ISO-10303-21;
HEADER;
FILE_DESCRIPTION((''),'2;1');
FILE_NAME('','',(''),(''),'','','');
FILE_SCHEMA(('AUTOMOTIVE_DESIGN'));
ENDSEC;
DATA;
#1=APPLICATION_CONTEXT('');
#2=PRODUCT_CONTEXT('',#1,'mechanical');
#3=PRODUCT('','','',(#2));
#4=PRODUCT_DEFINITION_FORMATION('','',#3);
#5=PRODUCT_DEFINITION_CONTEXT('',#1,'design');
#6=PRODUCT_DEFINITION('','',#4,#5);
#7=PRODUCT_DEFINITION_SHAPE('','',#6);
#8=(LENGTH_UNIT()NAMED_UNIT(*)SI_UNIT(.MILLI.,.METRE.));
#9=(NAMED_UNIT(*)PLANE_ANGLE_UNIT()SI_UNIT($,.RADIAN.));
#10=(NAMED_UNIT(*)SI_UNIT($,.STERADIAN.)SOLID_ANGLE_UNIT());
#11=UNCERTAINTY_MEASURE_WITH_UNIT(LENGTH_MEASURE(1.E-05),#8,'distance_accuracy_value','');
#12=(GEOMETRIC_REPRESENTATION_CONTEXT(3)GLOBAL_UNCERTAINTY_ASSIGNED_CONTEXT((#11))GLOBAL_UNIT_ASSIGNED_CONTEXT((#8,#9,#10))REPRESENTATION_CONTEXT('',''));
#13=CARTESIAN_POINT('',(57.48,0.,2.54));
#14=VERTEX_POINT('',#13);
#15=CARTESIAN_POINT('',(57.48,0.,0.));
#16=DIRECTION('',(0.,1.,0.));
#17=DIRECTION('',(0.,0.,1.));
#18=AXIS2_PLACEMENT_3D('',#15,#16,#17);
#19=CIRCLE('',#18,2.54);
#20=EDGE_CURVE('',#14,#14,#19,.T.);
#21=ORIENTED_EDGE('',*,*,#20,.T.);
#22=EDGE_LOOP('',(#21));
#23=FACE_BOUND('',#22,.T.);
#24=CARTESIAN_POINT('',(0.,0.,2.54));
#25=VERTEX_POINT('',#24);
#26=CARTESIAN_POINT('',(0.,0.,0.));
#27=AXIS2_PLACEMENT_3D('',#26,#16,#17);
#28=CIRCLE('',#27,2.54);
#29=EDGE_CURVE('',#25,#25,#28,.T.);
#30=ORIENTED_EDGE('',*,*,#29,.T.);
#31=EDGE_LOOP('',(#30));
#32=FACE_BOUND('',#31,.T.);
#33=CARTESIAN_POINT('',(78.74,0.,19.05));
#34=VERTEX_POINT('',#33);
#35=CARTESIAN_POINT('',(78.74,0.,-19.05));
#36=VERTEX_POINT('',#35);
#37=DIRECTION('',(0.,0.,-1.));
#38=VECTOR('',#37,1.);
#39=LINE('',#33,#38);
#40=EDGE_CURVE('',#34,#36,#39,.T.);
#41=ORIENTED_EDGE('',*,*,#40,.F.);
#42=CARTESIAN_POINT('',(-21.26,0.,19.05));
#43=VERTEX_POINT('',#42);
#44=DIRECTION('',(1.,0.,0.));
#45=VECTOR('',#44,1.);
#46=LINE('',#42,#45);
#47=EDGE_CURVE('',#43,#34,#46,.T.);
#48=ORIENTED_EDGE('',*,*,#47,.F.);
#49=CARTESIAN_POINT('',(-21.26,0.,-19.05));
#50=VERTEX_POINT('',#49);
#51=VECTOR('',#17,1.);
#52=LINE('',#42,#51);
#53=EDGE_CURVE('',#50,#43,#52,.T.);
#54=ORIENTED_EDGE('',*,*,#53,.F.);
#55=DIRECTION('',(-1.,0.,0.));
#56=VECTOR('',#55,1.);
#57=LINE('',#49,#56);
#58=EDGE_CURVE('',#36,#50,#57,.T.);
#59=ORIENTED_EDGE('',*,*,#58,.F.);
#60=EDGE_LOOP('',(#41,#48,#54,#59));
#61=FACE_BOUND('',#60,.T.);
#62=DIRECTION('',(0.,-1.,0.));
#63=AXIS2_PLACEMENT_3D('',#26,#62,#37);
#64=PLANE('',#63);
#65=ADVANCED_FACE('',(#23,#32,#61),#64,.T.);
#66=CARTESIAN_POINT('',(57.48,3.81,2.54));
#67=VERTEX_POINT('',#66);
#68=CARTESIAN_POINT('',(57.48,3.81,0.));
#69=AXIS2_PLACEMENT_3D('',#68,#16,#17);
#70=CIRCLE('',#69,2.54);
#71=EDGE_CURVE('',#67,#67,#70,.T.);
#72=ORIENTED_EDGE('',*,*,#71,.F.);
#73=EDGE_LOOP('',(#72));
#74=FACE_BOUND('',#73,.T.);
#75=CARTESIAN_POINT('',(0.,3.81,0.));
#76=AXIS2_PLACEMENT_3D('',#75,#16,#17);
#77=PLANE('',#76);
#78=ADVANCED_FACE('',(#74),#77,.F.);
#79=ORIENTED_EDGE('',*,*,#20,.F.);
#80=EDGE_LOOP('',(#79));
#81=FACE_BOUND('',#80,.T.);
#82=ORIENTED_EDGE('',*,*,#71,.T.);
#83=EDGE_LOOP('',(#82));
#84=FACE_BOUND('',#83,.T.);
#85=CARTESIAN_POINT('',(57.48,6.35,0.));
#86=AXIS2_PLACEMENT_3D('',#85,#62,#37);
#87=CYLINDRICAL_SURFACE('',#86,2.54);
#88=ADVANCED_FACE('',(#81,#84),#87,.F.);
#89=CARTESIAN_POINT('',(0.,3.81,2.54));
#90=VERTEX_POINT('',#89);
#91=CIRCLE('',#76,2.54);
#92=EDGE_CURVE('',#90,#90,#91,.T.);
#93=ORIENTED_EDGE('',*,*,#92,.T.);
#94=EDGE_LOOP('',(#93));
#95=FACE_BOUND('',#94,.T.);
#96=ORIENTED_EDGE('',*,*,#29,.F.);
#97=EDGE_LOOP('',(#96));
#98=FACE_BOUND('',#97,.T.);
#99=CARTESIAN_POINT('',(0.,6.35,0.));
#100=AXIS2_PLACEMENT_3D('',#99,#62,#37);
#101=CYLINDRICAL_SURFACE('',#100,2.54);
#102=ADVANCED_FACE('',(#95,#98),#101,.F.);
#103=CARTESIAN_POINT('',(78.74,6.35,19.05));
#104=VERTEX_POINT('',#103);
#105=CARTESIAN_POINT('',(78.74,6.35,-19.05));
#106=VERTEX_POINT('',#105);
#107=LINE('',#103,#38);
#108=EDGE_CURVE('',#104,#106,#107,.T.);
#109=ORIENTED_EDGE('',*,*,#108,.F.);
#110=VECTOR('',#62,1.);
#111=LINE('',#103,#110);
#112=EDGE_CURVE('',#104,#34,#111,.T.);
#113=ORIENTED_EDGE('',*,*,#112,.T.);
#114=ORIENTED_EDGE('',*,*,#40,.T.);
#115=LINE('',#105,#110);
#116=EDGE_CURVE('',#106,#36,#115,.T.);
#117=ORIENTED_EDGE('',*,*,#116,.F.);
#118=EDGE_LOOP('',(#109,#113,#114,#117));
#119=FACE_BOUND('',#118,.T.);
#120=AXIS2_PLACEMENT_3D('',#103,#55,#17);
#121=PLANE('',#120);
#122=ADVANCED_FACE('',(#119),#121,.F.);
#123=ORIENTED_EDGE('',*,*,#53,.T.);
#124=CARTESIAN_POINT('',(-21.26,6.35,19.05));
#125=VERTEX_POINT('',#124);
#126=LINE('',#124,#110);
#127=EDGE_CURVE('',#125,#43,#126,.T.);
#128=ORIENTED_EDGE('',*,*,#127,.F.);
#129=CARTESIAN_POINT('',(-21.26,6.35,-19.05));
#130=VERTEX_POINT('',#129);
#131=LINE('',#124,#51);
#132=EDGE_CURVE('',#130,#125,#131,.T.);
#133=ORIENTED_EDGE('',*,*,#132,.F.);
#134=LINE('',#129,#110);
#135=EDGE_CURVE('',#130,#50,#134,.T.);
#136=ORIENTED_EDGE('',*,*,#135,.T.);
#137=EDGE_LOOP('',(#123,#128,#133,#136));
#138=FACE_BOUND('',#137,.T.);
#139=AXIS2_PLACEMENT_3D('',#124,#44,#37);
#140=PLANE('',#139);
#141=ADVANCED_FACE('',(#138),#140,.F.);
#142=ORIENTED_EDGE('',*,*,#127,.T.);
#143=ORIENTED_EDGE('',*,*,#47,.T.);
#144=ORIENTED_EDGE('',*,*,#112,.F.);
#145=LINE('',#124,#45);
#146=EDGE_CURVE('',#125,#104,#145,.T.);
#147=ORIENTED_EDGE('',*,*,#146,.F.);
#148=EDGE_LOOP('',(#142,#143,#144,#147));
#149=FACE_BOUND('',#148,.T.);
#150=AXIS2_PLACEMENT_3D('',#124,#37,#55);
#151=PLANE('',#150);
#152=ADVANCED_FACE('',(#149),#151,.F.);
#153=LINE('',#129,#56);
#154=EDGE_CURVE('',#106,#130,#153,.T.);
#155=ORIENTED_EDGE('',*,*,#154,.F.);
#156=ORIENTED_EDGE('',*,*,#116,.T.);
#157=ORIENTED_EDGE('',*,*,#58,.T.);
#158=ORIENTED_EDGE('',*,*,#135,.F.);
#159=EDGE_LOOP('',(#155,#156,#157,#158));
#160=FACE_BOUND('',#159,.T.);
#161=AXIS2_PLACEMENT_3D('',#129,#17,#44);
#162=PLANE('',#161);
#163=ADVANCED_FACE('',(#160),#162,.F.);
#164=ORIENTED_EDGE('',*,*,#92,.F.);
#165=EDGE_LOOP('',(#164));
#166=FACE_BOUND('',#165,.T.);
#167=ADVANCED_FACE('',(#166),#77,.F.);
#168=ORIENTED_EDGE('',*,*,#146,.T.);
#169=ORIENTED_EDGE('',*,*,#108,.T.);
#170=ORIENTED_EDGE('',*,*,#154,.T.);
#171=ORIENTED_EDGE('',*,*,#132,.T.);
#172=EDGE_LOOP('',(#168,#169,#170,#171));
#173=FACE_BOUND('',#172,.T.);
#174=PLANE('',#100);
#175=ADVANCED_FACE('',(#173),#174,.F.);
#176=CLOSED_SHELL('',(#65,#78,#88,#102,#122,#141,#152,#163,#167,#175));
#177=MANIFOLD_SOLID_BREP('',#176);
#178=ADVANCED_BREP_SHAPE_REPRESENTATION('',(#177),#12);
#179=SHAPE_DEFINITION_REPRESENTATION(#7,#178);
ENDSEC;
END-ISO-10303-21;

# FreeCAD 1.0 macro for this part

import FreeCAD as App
import Part
import Sketcher
from FreeCAD import Vector
Q = App.Units.Quantity


def add_polygon(sketch, points):
    """Adds a closed chain of lines whose ends are joined by coincident constraints."""
    first, n = sketch.GeometryCount, len(points)
    for a, b in zip(points, points[1:] + points[:1]):
        sketch.addGeometry(Part.LineSegment(App.Vector(*a, 0), App.Vector(*b, 0)), False)
    for i in range(n):
        sketch.addConstraint(Sketcher.Constraint("Coincident", first + i, 2, first + (i + 1) % n, 1))

doc = App.newDocument("Part")
params = doc.addObject("Spreadsheet::Sheet", "Params")
for row, (alias, value) in enumerate([
    ("sketch1_diameter", "0.2 in"),
    ("sketch1_height", "1.5 in"),
    ("pad1_length", "0.25 in"),
    ("sketch2_height", "1.5 in"),
    ("pad2_length", "0.1 in"),
], start=1):
    params.set(f"A{row}", alias)
    params.set(f"B{row}", "=" + value)
    params.setAlias(f"B{row}", alias)

body = doc.addObject("PartDesign::Body", "Body")

sketch1 = body.newObject("Sketcher::SketchObject", "Sketch")
sketch1.AttachmentSupport = (doc.getObject("XZ_Plane"), [""])
sketch1.MapMode = "FlatFace"
add_polygon(sketch1, [(-21.3, -19.1), (-21.3, 19.1), (78.7, 19.1), (78.7, -19.1)])
sketch1.addGeometry(Part.Circle(Vector(0, 0, 0), Vector(0, 0, 1), 2.5), False)
sketch1.addGeometry(Part.Circle(Vector(57.5, 0, 0), Vector(0, 0, 1), 2.5), False)
sketch1.addConstraint([
    Sketcher.Constraint("Vertical", 0),
    Sketcher.Constraint("Horizontal", 1),
    Sketcher.Constraint("Vertical", 2),
    Sketcher.Constraint("Horizontal", 3),
    Sketcher.Constraint("Coincident", 4, 3, -1, 1),
    Sketcher.Constraint("Equal", 4, 5),
    Sketcher.Constraint("PointOnObject", 5, 3, -1),
    Sketcher.Constraint("Diameter", 4, Q("0.2 in")),
    Sketcher.Constraint("DistanceY", 0, 1, 0, 2, Q("1.5 in")),
    Sketcher.Constraint("DistanceX", -1, 1, 1, 2, Q("3.1 in")),
    Sketcher.Constraint("DistanceX", 0, 2, 5, 3, Q("3.1 in")),
    Sketcher.Constraint("DistanceY", -1, 1, 0, 2, Q("0.75 in")),
    Sketcher.Constraint("DistanceX", 1, 1, 1, 2, 100.0),
])
sketch1.setExpression("Constraints[11]", "Params.sketch1_diameter")
sketch1.setExpression("Constraints[12]", "Params.sketch1_height")
pad1 = body.newObject("PartDesign::Pad", "Pad")
pad1.Profile = sketch1
pad1.setExpression("Length", "Params.pad1_length")
pad1.Reversed = True

sketch2 = body.newObject("Sketcher::SketchObject", "Sketch001")
sketch2.AttachmentSupport = (doc.getObject("XZ_Plane"), [""])
sketch2.MapMode = "FlatFace"
sketch2.AttachmentOffset = App.Placement(Vector(0, 0, -0.25 * 25.4), App.Rotation())
add_polygon(sketch2, [(-21, -19), (-21, 19), (79, 19), (79, -19)])
sketch2.addConstraint([
    Sketcher.Constraint("Vertical", 0),
    Sketcher.Constraint("Horizontal", 1),
    Sketcher.Constraint("Vertical", 2),
    Sketcher.Constraint("Horizontal", 3),
    Sketcher.Constraint("DistanceY", 0, 1, 0, 2, Q("1.5 in")),
    Sketcher.Constraint("DistanceX", -1, 1, 1, 2, Q("3.1 in")),
    Sketcher.Constraint("DistanceY", -1, 1, 0, 2, Q("0.75 in")),
    Sketcher.Constraint("DistanceX", 1, 1, 1, 2, 100.0),
])
sketch2.setExpression("Constraints[8]", "Params.sketch2_height")
pad2 = body.newObject("PartDesign::Pad", "Pad001")
pad2.Profile = sketch2
pad2.setExpression("Length", "Params.pad2_length")

doc.recompute()
